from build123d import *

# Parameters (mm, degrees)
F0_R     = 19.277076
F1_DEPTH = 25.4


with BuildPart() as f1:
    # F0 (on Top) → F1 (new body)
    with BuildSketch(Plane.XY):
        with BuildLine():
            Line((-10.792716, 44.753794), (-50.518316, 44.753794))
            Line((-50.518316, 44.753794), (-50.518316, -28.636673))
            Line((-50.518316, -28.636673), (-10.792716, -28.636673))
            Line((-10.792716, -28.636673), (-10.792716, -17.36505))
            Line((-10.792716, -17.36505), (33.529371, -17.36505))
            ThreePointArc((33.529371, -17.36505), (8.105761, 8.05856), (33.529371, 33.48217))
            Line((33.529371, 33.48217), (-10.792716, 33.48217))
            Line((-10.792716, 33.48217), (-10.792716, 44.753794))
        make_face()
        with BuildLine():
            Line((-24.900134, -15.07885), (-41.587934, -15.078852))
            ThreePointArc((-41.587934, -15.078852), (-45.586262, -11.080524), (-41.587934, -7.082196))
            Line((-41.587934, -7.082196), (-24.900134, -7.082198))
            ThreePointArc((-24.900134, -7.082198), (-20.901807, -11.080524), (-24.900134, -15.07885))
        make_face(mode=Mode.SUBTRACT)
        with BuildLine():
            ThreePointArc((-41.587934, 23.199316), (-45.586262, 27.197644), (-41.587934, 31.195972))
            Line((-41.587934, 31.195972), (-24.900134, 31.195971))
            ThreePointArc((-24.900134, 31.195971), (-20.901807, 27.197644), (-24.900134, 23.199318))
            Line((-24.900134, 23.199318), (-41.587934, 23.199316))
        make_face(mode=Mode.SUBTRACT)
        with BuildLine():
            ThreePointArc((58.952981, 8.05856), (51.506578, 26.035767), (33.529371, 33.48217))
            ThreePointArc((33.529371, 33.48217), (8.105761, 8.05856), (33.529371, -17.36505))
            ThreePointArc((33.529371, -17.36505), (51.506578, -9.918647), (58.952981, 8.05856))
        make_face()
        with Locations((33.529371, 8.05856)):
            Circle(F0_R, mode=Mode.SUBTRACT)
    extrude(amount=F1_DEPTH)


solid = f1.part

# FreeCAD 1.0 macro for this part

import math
import FreeCAD as App
import Part
import Sketcher

V = App.Vector
Q = App.Units.Quantity

doc = App.newDocument("Part")
body = doc.addObject("PartDesign::Body", "Body")

# Sketch on XY plane
sketch1 = body.newObject("Sketcher::SketchObject", "Sketch")
sketch1.AttachmentSupport = (doc.getObject("XY_Plane"), [""])
sketch1.MapMode = "FlatFace"
sketch1.addGeometry([
    Part.LineSegment(V(-10.8, 44.8, 0), V(-50.5, 44.8, 0)),  # 0
    Part.LineSegment(V(-50.5, 44.8, 0), V(-50.5, -28.6, 0)),  # 1
    Part.LineSegment(V(-50.5, -28.6, 0), V(-10.8, -28.6, 0)),  # 2
    Part.LineSegment(V(-10.8, -28.6, 0), V(-10.8, -17.4, 0)),  # 3
    Part.LineSegment(V(-10.8, -17.4, 0), V(33.5, -17.4, 0)),  # 4
    Part.ArcOfCircle(Part.Circle(V(33.5, 8.1, 0), V(0, 0, 1), 25.4), math.radians(-90), math.radians(0)),  # 5
    Part.ArcOfCircle(Part.Circle(V(33.5, 8.1, 0), V(0, 0, 1), 25.4), math.radians(0), math.radians(90)),  # 6
    Part.LineSegment(V(33.5, 33.5, 0), V(-10.8, 33.5, 0)),  # 7
    Part.LineSegment(V(-10.8, 33.5, 0), V(-10.8, 44.8, 0)),  # 8
    Part.ArcOfCircle(Part.Circle(V(-24.9, -11.1, 0), V(0, 0, 1), 4), math.radians(-90), math.radians(90)),  # 9
    Part.LineSegment(V(-24.9, -15.1, 0), V(-41.6, -15.1, 0)),  # 10
    Part.ArcOfCircle(Part.Circle(V(-41.6, -11.1, 0), V(0, 0, 1), 4), math.radians(90), math.radians(270)),  # 11
    Part.LineSegment(V(-41.6, -7.1, 0), V(-24.9, -7.1, 0)),  # 12
    Part.LineSegment(V(-24.9, 23.2, 0), V(-41.6, 23.2, 0)),  # 13
    Part.ArcOfCircle(Part.Circle(V(-41.6, 27.2, 0), V(0, 0, 1), 4), math.radians(90), math.radians(270)),  # 14
    Part.LineSegment(V(-41.6, 31.2, 0), V(-24.9, 31.2, 0)),  # 15
    Part.ArcOfCircle(Part.Circle(V(-24.9, 27.2, 0), V(0, 0, 1), 4), math.radians(-90), math.radians(90)),  # 16
    Part.Circle(V(33.5, 8.1, 0), V(0, 0, 1), 19.3),  # 17
], False)
sketch1.addConstraint([
    Sketcher.Constraint("Coincident", 0, 2, 1, 1),
    Sketcher.Constraint("Coincident", 1, 2, 2, 1),
    Sketcher.Constraint("Coincident", 2, 2, 3, 1),
    Sketcher.Constraint("Coincident", 3, 2, 4, 1),
    Sketcher.Constraint("Tangent", 4, 2, 5, 1),
    Sketcher.Constraint("Tangent", 5, 2, 6, 1),
    Sketcher.Constraint("Tangent", 6, 2, 7, 1),
    Sketcher.Constraint("Coincident", 7, 2, 8, 1),
    Sketcher.Constraint("Coincident", 8, 2, 0, 1),
    Sketcher.Constraint("Tangent", 9, 1, 10, 1),
    Sketcher.Constraint("Tangent", 10, 2, 11, 2),
    Sketcher.Constraint("Tangent", 11, 1, 12, 1),
    Sketcher.Constraint("Tangent", 12, 2, 9, 2),
    Sketcher.Constraint("Tangent", 13, 2, 14, 2),
    Sketcher.Constraint("Tangent", 14, 1, 15, 1),
    Sketcher.Constraint("Tangent", 15, 2, 16, 2),
    Sketcher.Constraint("Tangent", 16, 1, 13, 1),
    Sketcher.Constraint("Horizontal", 0),
    Sketcher.Constraint("Vertical", 1),
    Sketcher.Constraint("Horizontal", 2),
    Sketcher.Constraint("Vertical", 3),
    Sketcher.Constraint("Horizontal", 4),
    Sketcher.Constraint("Horizontal", 7),
    Sketcher.Constraint("Vertical", 8),
    Sketcher.Constraint("Horizontal", 15),
    Sketcher.Constraint("Coincident", 17, 3, 5, 3),
    Sketcher.Constraint("Equal", 5, 6),
    Sketcher.Constraint("Equal", 9, 11),
    Sketcher.Constraint("Equal", 11, 14),
    Sketcher.Constraint("Equal", 14, 16),
    Sketcher.Constraint("Parallel", 12, 13),
    Sketcher.Constraint("Horizontal", 17, 3, 5, 2),
    Sketcher.Constraint("Vertical", 11, 3, 14, 3),
    Sketcher.Constraint("Vertical", 9, 3, 16, 3),
    Sketcher.Constraint("Vertical", 3, 2, 7, 2),
    Sketcher.Constraint("Equal", 3, 8),
    Sketcher.Constraint("DistanceX", 0, 2, 0, 1, Q("1.564 in")),
    Sketcher.Constraint("DistanceX", 15, 1, 15, 2, Q("0.657 in")),
    Sketcher.Constraint("Radius", 5, Q("25.42361 mm")),
    Sketcher.Constraint("Diameter", 17, Q("38.554152 mm")),
    Sketcher.Constraint("Radius", 9, Q("3.998326 mm")),
    Sketcher.Constraint("DistanceY", 3, 2, 9, 1, Q("2.2862 mm")),
    Sketcher.Constraint("DistanceY", 14, 1, 7, 2, Q("2.286198 mm")),
    Sketcher.Constraint("DistanceX", 4, 1, 4, 2, Q("44.322087 mm")),
    Sketcher.Constraint("DistanceY", 1, 2, 1, 1, Q("73.390467 mm")),
    Sketcher.Constraint("DistanceX", -1, 1, 5, 3, Q("33.529371 mm")),
    Sketcher.Constraint("DistanceY", -1, 1, 5, 3, Q("8.05856 mm")),
    Sketcher.Constraint("DistanceX", 9, 1, 3, 2, Q("14.107418 mm")),
])
pad1 = body.newObject("PartDesign::Pad", "Pad")
pad1.Profile = sketch1
pad1.Length = Q("1 in")

doc.recompute()
